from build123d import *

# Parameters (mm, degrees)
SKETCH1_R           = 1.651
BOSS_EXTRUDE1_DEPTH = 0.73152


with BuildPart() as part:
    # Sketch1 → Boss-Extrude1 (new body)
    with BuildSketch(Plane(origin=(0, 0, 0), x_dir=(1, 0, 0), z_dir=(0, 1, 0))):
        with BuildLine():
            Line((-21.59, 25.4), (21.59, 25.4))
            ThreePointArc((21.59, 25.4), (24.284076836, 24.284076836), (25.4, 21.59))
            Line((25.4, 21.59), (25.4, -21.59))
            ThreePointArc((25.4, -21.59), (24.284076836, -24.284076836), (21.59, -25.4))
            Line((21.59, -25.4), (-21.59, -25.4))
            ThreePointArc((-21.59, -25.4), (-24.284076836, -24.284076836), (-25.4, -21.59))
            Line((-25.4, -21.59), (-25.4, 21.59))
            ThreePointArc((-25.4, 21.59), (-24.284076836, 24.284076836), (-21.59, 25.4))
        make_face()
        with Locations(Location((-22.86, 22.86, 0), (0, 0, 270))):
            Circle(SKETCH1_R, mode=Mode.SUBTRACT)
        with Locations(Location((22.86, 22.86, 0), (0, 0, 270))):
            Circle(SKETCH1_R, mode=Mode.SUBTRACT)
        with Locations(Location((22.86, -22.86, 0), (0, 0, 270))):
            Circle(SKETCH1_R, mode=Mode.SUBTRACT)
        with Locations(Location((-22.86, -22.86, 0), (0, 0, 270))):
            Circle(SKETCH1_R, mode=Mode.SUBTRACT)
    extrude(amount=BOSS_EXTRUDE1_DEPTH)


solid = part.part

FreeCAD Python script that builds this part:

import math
import FreeCAD as App
import Part
import Sketcher
Q = App.Units.Quantity

doc = App.newDocument("Part")
body = doc.addObject("PartDesign::Body", "Body")

# Sketch on XZ plane
sketch1 = body.newObject("Sketcher::SketchObject", "Sketch")
sketch1.AttachmentSupport = (doc.getObject("XZ_Plane"), [""])
sketch1.MapMode = "FlatFace"
sketch1.addGeometry([
    Part.LineSegment(App.Vector(21.6, -25.4, 0), App.Vector(-21.6, -25.4, 0)),  # 0
    Part.ArcOfCircle(Part.Circle(App.Vector(-21.6, -21.6, 0), App.Vector(0, 0, 1), 3.8), math.radians(-180), math.radians(-90)),  # 1
    Part.LineSegment(App.Vector(-25.4, -21.6, 0), App.Vector(-25.4, 21.6, 0)),  # 2
    Part.ArcOfCircle(Part.Circle(App.Vector(-21.6, 21.6, 0), App.Vector(0, 0, 1), 3.8), math.radians(90), math.radians(180)),  # 3
    Part.LineSegment(App.Vector(-21.6, 25.4, 0), App.Vector(21.6, 25.4, 0)),  # 4
    Part.ArcOfCircle(Part.Circle(App.Vector(21.6, 21.6, 0), App.Vector(0, 0, 1), 3.8), math.radians(0), math.radians(90)),  # 5
    Part.LineSegment(App.Vector(25.4, 21.6, 0), App.Vector(25.4, -21.6, 0)),  # 6
    Part.ArcOfCircle(Part.Circle(App.Vector(21.6, -21.6, 0), App.Vector(0, 0, 1), 3.8), math.radians(-90), math.radians(0)),  # 7
    Part.Circle(App.Vector(22.9, 22.9, 0), App.Vector(0, 0, 1), 1.7),  # 8
    Part.Circle(App.Vector(-22.9, 22.9, 0), App.Vector(0, 0, 1), 1.7),  # 9
    Part.Circle(App.Vector(22.9, -22.9, 0), App.Vector(0, 0, 1), 1.7),  # 10
    Part.Circle(App.Vector(-22.9, -22.9, 0), App.Vector(0, 0, 1), 1.7),  # 11
], False)
sketch1.addConstraint([
    Sketcher.Constraint("Tangent", 0, 2, 1, 2),
    Sketcher.Constraint("Tangent", 1, 1, 2, 1),
    Sketcher.Constraint("Tangent", 2, 2, 3, 2),
    Sketcher.Constraint("Tangent", 3, 1, 4, 1),
    Sketcher.Constraint("Tangent", 4, 2, 5, 2),
    Sketcher.Constraint("Tangent", 5, 1, 6, 1),
    Sketcher.Constraint("Tangent", 6, 2, 7, 2),
    Sketcher.Constraint("Tangent", 7, 1, 0, 1),
    Sketcher.Constraint("Horizontal", 0),
    Sketcher.Constraint("Vertical", 2),
    Sketcher.Constraint("Horizontal", 4),
    Sketcher.Constraint("Vertical", 6),
    Sketcher.Constraint("Equal", 1, 3),
    Sketcher.Constraint("Equal", 3, 5),
    Sketcher.Constraint("Equal", 5, 7),
    Sketcher.Constraint("Equal", 8, 9),
    Sketcher.Constraint("Equal", 9, 10),
    Sketcher.Constraint("Equal", 10, 11),
    Sketcher.Constraint("Symmetric", 1, 3, 5, 3, -1, 1),
    Sketcher.Constraint("Symmetric", 9, 3, 10, 3, -1, 1),
    Sketcher.Constraint("Symmetric", 8, 3, 11, 3, -1, 1),
    Sketcher.Constraint("Symmetric", 8, 3, 9, 3, -2),
    Sketcher.Constraint("Equal", 4, 2),
    Sketcher.Constraint("Diameter", 8, Q("0.13 in")),
    Sketcher.Constraint("Radius", 1, Q("0.15 in")),
    Sketcher.Constraint("DistanceX", 0, 2, 0, 1, Q("1.7 in")),
    Sketcher.Constraint("DistanceX", -1, 1, 8, 3, Q("0.9 in")),
    Sketcher.Constraint("DistanceY", -1, 1, 8, 3, Q("0.9 in")),
])
pad1 = body.newObject("PartDesign::Pad", "Pad")
pad1.Profile = sketch1
pad1.Length = Q("0.0288 in")
pad1.Reversed = True

doc.recompute()
